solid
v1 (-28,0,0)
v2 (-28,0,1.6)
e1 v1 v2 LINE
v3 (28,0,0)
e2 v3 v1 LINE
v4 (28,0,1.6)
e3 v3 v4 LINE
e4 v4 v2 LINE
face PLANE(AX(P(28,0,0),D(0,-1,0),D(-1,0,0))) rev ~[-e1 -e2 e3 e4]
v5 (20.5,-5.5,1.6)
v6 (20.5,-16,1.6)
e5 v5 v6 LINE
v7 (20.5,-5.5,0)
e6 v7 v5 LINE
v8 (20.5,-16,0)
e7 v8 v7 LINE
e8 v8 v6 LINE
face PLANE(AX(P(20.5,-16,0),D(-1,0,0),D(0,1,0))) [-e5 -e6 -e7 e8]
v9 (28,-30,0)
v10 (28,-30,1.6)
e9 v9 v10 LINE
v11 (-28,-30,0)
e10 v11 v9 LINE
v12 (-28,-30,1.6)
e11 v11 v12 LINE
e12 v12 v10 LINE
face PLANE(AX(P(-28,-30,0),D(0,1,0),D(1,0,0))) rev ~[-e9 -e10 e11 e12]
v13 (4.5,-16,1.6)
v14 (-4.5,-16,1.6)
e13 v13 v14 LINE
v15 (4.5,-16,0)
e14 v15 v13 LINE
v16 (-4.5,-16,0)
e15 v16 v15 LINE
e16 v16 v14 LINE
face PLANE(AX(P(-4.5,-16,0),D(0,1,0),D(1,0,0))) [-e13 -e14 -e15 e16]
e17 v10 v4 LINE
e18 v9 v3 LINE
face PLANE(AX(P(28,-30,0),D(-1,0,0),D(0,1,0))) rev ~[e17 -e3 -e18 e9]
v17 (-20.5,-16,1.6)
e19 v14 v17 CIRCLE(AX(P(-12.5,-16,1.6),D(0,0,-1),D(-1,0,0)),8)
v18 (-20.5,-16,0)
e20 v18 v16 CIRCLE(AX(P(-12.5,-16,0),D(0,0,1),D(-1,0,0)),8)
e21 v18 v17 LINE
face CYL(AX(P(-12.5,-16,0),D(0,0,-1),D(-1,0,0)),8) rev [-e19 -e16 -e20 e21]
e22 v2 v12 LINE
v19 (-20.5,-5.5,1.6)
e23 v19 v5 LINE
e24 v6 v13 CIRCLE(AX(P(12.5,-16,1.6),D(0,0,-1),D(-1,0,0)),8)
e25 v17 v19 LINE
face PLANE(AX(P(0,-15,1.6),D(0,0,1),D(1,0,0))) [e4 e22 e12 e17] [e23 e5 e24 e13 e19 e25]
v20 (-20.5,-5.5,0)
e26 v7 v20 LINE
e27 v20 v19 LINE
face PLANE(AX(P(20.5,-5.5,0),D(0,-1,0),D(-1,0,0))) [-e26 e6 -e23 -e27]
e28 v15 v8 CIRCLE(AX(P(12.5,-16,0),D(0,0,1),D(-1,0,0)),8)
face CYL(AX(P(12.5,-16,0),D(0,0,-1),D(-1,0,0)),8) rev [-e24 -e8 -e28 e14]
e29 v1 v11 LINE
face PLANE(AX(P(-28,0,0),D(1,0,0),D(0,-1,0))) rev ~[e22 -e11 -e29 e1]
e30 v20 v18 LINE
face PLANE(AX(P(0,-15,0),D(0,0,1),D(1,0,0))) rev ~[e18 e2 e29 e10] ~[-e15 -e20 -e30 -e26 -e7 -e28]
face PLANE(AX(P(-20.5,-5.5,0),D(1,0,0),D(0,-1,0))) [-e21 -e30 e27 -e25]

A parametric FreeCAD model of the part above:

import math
import FreeCAD as App
import Part
import Sketcher
from FreeCAD import Vector

doc = App.newDocument("Part")
body = doc.addObject("PartDesign::Body", "Body")

# Sketch on XY plane
sketch1 = body.newObject("Sketcher::SketchObject", "Sketch")
sketch1.AttachmentSupport = (doc.getObject("XY_Plane"), [""])
sketch1.MapMode = "FlatFace"
sketch1.addGeometry([
    Part.LineSegment(Vector(-4, -16, 0), Vector(4, -16, 0)),  # 0
    Part.ArcOfCircle(Part.Circle(Vector(12, -16, 0), Vector(0, 0, 1), 8), math.radians(180), math.radians(360)),  # 1
    Part.LineSegment(Vector(20, -16, 0), Vector(20, -6, 0)),  # 2
    Part.LineSegment(Vector(20, -6, 0), Vector(-20, -6, 0)),  # 3
    Part.LineSegment(Vector(-20, -6, 0), Vector(-20, -16, 0)),  # 4
    Part.ArcOfCircle(Part.Circle(Vector(-12, -16, 0), Vector(0, 0, 1), 8), math.radians(180), math.radians(360)),  # 5
], False)
sketch1.addConstraint([
    Sketcher.Constraint("Coincident", 0, 2, 1, 1),
    Sketcher.Constraint("Tangent", 1, 2, 2, 1),
    Sketcher.Constraint("Coincident", 2, 2, 3, 1),
    Sketcher.Constraint("Coincident", 3, 2, 4, 1),
    Sketcher.Constraint("Tangent", 4, 2, 5, 1),
    Sketcher.Constraint("Coincident", 5, 2, 0, 1),
    Sketcher.Constraint("Horizontal", 0),
    Sketcher.Constraint("Vertical", 2),
    Sketcher.Constraint("Horizontal", 3),
    Sketcher.Constraint("Vertical", 4),
    Sketcher.Constraint("Equal", 1, 5),
    Sketcher.Constraint("Symmetric", 1, 3, 5, 3, -2),
    Sketcher.Constraint("Horizontal", 5, 3, 0, 2),
    Sketcher.Constraint("Radius", 1, 8.0),
    Sketcher.Constraint("DistanceX", 0, 1, 0, 2, 9.0),
    Sketcher.Constraint("DistanceY", 2, 1, 2, 2, 10.5),
    Sketcher.Constraint("DistanceY", 1, 3, -1, 1, 16.0),
])
pad1 = body.newObject("PartDesign::Pad", "Pad")
pad1.Profile = sketch1
pad1.Length = 1.7
body2 = doc.addObject("PartDesign::Body", "Body001")

# Sketch on XY plane
sketch2 = body2.newObject("Sketcher::SketchObject", "Sketch001")
sketch2.AttachmentSupport = (doc.getObject("XY_Plane001"), [""])
sketch2.MapMode = "FlatFace"
sketch2.addGeometry([
    Part.LineSegment(Vector(28, 0, 0), Vector(-28, 0, 0)),
    Part.LineSegment(Vector(-28, 0, 0), Vector(-28, -30, 0)),
    Part.LineSegment(Vector(-28, -30, 0), Vector(28, -30, 0)),
    Part.LineSegment(Vector(28, -30, 0), Vector(28, 0, 0)),
], False)
sketch2.addConstraint([
    Sketcher.Constraint("Coincident", 0, 2, 1, 1),
    Sketcher.Constraint("Coincident", 1, 2, 2, 1),
    Sketcher.Constraint("Coincident", 2, 2, 3, 1),
    Sketcher.Constraint("Coincident", 3, 2, 0, 1),
    Sketcher.Constraint("Horizontal", 0),
    Sketcher.Constraint("Vertical", 1),
    Sketcher.Constraint("Horizontal", 2),
    Sketcher.Constraint("Vertical", 3),
    Sketcher.Constraint("Symmetric", 0, 2, 3, 2, -1, 1),
    Sketcher.Constraint("DistanceX", 0, 2, 0, 1, 56.0),
    Sketcher.Constraint("DistanceY", 1, 2, 1, 1, 30.0),
])
pad2 = body2.newObject("PartDesign::Pad", "Pad001")
pad2.Profile = sketch2
pad2.Length = 1.6
doc.recompute()

boolean = body2.newObject("PartDesign::Boolean", "Boolean")
boolean.Type = "Cut"
boolean.addObjects([body])

doc.recompute()
